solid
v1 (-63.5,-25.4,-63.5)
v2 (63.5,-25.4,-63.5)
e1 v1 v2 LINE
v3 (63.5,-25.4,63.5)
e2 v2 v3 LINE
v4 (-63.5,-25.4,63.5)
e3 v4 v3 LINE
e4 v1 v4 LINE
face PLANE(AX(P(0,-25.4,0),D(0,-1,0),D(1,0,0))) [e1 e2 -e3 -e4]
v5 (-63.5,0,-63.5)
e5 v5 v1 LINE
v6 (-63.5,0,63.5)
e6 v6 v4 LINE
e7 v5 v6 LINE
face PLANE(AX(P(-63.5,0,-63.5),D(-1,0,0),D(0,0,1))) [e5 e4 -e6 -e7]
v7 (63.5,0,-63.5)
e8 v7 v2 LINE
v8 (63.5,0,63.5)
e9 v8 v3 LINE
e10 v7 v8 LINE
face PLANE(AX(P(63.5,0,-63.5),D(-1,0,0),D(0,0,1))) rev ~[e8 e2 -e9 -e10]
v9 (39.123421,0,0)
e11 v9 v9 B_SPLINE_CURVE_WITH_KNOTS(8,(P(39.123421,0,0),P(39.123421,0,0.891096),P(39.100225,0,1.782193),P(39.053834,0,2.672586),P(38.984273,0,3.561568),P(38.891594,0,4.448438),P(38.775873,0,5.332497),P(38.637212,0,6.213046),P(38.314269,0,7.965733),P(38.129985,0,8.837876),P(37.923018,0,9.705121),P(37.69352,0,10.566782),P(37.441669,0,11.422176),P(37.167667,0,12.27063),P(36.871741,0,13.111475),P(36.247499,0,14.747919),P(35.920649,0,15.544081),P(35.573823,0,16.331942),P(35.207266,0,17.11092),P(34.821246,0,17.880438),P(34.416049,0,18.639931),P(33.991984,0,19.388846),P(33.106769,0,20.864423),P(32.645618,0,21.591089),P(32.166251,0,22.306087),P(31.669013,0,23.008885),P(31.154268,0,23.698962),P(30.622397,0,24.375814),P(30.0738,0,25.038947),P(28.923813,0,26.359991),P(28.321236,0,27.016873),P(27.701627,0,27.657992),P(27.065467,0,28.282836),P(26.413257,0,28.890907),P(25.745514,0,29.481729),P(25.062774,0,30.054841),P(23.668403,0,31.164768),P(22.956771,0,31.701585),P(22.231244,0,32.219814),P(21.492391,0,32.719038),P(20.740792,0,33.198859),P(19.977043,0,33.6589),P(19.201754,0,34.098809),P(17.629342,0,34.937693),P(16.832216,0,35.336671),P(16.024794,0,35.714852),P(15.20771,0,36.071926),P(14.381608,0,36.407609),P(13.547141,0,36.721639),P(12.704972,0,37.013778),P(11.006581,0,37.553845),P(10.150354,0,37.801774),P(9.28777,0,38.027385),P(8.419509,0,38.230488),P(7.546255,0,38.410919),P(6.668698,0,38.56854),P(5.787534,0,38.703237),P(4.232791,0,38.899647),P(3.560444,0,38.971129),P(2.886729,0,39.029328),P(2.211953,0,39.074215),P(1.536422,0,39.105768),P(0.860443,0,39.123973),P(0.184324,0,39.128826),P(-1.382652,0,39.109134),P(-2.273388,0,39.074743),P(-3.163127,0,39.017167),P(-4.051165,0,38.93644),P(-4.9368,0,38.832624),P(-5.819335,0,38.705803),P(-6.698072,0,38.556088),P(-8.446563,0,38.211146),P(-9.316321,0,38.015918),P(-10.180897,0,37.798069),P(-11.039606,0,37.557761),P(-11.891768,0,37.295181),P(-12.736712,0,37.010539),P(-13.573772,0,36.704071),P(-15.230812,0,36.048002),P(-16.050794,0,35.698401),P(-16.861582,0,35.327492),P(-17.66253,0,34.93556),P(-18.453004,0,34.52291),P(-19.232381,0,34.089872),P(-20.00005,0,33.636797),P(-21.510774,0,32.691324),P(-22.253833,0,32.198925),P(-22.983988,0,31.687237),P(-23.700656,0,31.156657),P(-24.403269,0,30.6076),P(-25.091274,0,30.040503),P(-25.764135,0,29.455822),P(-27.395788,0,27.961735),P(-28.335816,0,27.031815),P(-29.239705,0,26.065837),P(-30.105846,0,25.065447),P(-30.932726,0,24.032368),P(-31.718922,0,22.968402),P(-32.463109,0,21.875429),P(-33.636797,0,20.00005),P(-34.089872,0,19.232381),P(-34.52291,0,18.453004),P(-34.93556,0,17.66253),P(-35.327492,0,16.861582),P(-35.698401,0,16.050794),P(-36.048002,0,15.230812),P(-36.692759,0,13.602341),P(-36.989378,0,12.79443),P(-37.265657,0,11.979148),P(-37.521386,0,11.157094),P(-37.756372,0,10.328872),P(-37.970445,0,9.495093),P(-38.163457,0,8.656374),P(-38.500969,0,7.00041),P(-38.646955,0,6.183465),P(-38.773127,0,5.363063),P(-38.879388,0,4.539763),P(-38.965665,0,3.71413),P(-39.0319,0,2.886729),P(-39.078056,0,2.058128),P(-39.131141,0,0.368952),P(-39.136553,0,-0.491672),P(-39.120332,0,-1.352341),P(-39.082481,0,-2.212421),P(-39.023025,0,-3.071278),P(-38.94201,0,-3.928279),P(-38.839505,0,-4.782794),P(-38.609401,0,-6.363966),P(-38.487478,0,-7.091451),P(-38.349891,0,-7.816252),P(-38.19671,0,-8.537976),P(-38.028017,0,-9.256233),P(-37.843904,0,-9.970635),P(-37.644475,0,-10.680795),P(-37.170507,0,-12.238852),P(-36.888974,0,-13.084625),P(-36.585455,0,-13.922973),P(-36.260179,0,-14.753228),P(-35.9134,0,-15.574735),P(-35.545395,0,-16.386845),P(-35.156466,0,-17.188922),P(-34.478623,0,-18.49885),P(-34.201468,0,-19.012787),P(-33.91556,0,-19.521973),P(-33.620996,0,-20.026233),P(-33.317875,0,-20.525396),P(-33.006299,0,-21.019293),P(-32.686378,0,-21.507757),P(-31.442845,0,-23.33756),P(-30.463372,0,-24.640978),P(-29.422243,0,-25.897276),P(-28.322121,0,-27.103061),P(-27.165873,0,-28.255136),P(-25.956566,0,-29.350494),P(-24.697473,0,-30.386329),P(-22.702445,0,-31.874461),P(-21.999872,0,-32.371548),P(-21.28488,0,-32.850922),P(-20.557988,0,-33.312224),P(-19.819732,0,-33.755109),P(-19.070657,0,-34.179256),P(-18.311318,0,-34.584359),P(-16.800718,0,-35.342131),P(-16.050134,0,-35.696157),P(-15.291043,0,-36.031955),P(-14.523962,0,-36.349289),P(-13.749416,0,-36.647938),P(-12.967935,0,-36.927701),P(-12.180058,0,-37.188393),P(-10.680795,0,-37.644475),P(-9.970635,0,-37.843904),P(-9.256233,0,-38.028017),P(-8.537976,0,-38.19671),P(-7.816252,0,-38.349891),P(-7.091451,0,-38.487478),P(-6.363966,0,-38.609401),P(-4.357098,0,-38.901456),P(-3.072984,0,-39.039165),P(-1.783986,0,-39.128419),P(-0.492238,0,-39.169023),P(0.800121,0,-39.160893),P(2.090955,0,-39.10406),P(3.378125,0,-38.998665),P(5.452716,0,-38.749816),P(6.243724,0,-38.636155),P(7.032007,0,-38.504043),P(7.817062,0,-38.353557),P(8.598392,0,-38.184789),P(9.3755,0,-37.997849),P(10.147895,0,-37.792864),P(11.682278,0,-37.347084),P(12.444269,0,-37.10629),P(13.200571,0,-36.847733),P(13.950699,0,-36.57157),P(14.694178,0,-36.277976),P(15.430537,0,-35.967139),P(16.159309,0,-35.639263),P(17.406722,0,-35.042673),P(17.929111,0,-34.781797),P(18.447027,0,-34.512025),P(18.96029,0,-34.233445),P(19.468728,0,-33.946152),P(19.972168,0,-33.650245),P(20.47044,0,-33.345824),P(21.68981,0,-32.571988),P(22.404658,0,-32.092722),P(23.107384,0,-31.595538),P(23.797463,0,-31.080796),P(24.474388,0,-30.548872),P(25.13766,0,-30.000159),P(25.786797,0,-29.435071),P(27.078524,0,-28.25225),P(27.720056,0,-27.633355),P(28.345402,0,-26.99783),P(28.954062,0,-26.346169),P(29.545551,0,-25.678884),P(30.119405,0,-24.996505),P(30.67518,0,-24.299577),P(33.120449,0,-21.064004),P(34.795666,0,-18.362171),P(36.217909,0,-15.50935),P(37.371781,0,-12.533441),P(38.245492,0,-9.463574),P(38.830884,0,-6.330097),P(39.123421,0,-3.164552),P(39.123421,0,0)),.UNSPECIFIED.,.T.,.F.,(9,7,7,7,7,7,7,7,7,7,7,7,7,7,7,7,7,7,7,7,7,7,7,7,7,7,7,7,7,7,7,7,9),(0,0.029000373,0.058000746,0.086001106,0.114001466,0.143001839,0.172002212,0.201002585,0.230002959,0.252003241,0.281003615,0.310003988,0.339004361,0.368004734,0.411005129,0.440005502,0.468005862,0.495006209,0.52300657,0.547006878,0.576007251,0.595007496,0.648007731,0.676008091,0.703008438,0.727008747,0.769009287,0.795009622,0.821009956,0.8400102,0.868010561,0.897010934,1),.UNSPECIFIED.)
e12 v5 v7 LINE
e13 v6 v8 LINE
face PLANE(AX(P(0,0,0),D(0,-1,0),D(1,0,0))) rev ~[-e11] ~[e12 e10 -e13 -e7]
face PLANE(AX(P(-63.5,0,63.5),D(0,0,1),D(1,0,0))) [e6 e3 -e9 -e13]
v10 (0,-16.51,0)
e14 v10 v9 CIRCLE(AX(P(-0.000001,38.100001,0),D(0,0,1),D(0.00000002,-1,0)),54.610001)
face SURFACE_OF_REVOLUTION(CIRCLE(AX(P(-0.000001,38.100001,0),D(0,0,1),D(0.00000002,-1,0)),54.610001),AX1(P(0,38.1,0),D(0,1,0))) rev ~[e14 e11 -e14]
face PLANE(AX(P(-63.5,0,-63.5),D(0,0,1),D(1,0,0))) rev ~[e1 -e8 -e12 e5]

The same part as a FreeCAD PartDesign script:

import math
import FreeCAD as App
import Part
import Sketcher

V = App.Vector
Q = App.Units.Quantity

doc = App.newDocument("Part")
body = doc.addObject("PartDesign::Body", "Body")

# Sketch on XZ plane
sketch1 = body.newObject("Sketcher::SketchObject", "Sketch")
sketch1.AttachmentSupport = (doc.getObject("XZ_Plane"), [""])
sketch1.MapMode = "FlatFace"
sketch1.addGeometry(Part.LineSegment(V(-64, 64, 0), V(-64, -64, 0)), False)
sketch1.addGeometry(Part.LineSegment(V(-64, -64, 0), V(64, -64, 0)), False)
sketch1.addGeometry(Part.LineSegment(V(64, -64, 0), V(64, 64, 0)), False)
sketch1.addGeometry(Part.LineSegment(V(64, 64, 0), V(-64, 64, 0)), False)
sketch1.addConstraint(Sketcher.Constraint("Coincident", 0, 2, 1, 1))
sketch1.addConstraint(Sketcher.Constraint("Coincident", 1, 2, 2, 1))
sketch1.addConstraint(Sketcher.Constraint("Coincident", 2, 2, 3, 1))
sketch1.addConstraint(Sketcher.Constraint("Coincident", 3, 2, 0, 1))
sketch1.addConstraint(Sketcher.Constraint("Vertical", 0))
sketch1.addConstraint(Sketcher.Constraint("Horizontal", 1))
sketch1.addConstraint(Sketcher.Constraint("Vertical", 2))
sketch1.addConstraint(Sketcher.Constraint("Horizontal", 3))
sketch1.addConstraint(Sketcher.Constraint("Symmetric", 0, 2, 2, 2, -1, 1))
sketch1.addConstraint(Sketcher.Constraint("Equal", 3, 0))
sketch1.addConstraint(Sketcher.Constraint("DistanceX", 1, 1, 1, 2, Q("5 in")))
pad1 = body.newObject("PartDesign::Pad", "Pad")
pad1.Profile = sketch1
pad1.Length = Q("1 in")

# Sketch on XY plane
sketch2 = body.newObject("Sketcher::SketchObject", "Sketch001")
sketch2.AttachmentSupport = (doc.getObject("XY_Plane"), [""])
sketch2.MapMode = "FlatFace"
sketch2.addGeometry(Part.ArcOfCircle(Part.Circle(V(0, 38, 0), V(0, 0, 1), 55), math.radians(-90), math.radians(0)), False)
sketch2.addGeometry(Part.ArcOfCircle(Part.Circle(V(0, 38, 0), V(0, 0, 1), 55), math.radians(0), math.radians(90)), False)
sketch2.addGeometry(Part.LineSegment(V(0, 93, 0), V(0, -17, 0)), False)
sketch2.addConstraint(Sketcher.Constraint("Tangent", 0, 2, 1, 1))
sketch2.addConstraint(Sketcher.Constraint("Coincident", 1, 2, 2, 1))
sketch2.addConstraint(Sketcher.Constraint("Coincident", 2, 2, 0, 1))
sketch2.addConstraint(Sketcher.Constraint("Vertical", 2))
sketch2.addConstraint(Sketcher.Constraint("Equal", 0, 1))
sketch2.addConstraint(Sketcher.Constraint("PointOnObject", 0, 3, -2))
sketch2.addConstraint(Sketcher.Constraint("PointOnObject", 1, 2, -2))
sketch2.addConstraint(Sketcher.Constraint("Horizontal", 1, 3, 0, 2))
sketch2.addConstraint(Sketcher.Constraint("Radius", 0, Q("2.15 in")))
sketch2.addConstraint(Sketcher.Constraint("DistanceY", -1, 1, 0, 3, Q("1.5 in")))
groove = body.newObject("PartDesign::Groove", "Groove")
groove.Profile = sketch2
groove.ReferenceAxis = (sketch2, ["V_Axis"])
groove.Angle = 360

doc.recompute()
